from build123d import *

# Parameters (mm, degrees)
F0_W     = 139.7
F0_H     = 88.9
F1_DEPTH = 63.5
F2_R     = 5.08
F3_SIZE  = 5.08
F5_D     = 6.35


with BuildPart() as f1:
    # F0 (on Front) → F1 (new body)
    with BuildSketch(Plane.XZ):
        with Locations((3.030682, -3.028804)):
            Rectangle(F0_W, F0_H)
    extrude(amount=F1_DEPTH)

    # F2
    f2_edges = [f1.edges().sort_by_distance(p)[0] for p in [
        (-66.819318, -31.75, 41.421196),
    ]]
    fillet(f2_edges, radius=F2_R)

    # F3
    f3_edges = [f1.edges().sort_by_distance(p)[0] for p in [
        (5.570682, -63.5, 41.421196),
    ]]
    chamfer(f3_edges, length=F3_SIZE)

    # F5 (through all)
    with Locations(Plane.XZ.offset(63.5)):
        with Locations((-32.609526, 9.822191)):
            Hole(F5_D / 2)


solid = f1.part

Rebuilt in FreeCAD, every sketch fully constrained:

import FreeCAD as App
import Part
import Sketcher

V = App.Vector
Q = App.Units.Quantity


def edges_at(feature, points):
    """Names of the edges that pass closest to the given points."""
    edges = feature.Shape.Edges
    near = lambda p: min(range(len(edges)), key=lambda i: edges[i].distToShape(Part.Vertex(*p))[0])
    return sorted({f"Edge{near(p) + 1}" for p in points})


def add_polygon(sketch, points):
    """Adds a closed chain of lines whose ends are joined by coincident constraints."""
    first, n = sketch.GeometryCount, len(points)
    for a, b in zip(points, points[1:] + points[:1]):
        sketch.addGeometry(Part.LineSegment(App.Vector(*a, 0), App.Vector(*b, 0)), False)
    for i in range(n):
        sketch.addConstraint(Sketcher.Constraint("Coincident", first + i, 2, first + (i + 1) % n, 1))

doc = App.newDocument("Part")
body = doc.addObject("PartDesign::Body", "Body")

sketch1 = body.newObject("Sketcher::SketchObject", "Sketch")
sketch1.AttachmentSupport = (doc.getObject("XZ_Plane"), [""])
sketch1.MapMode = "FlatFace"
add_polygon(sketch1, [(-67, 41), (-67, -47), (73, -47), (73, 41)])
sketch1.addConstraint(Sketcher.Constraint("Vertical", 0))
sketch1.addConstraint(Sketcher.Constraint("Horizontal", 1))
sketch1.addConstraint(Sketcher.Constraint("Vertical", 2))
sketch1.addConstraint(Sketcher.Constraint("Horizontal", 3))
sketch1.addConstraint(Sketcher.Constraint("DistanceX", 1, 1, 1, 2, Q("5.5 in")))
sketch1.addConstraint(Sketcher.Constraint("DistanceY", 0, 2, 0, 1, Q("3.5 in")))
sketch1.addConstraint(Sketcher.Constraint("DistanceX", -1, 1, 1, 2, 72.880682))
sketch1.addConstraint(Sketcher.Constraint("DistanceY", 0, 2, -1, 1, 47.478804))
pad1 = body.newObject("PartDesign::Pad", "Pad")
pad1.Profile = sketch1
pad1.Length = Q("2.5 in")
doc.recompute()

fillet = body.newObject("PartDesign::Fillet", "Fillet")
fillet.Base = (pad1, edges_at(pad1, [(-66.819, -31.75, 41.421)]))
fillet.Radius = Q("0.2 in")
doc.recompute()

chamfer = body.newObject("PartDesign::Chamfer", "Chamfer")
chamfer.Base = (fillet, edges_at(fillet, [(5.571, -63.5, 41.421)]))
chamfer.Size = Q("0.2 in")

sketch2 = body.newObject("Sketcher::SketchObject", "Sketch001")
sketch2.AttachmentSupport = (doc.getObject("XZ_Plane"), [""])
sketch2.MapMode = "FlatFace"
sketch2.AttachmentOffset = App.Placement(V(0, 0, 2.5 * 25.4), App.Rotation())
sketch2.addGeometry(Part.Circle(V(-32.6, 9.8, 0), V(0, 0, 1), 3.2), False)
sketch2.addConstraint(Sketcher.Constraint("Diameter", 0, Q("0.25 in")))
sketch2.addConstraint(Sketcher.Constraint("DistanceY", -1, 1, 0, 3, 9.822191))
sketch2.addConstraint(Sketcher.Constraint("DistanceX", 0, 3, -1, 1, 32.609526))
doc.recompute()
hole = body.newObject("PartDesign::Hole", "Hole")
hole.Profile = sketch2
hole.ThreadType = "None"
hole.Diameter = Q("0.25 in")
hole.DepthType = "ThroughAll"

doc.recompute()
